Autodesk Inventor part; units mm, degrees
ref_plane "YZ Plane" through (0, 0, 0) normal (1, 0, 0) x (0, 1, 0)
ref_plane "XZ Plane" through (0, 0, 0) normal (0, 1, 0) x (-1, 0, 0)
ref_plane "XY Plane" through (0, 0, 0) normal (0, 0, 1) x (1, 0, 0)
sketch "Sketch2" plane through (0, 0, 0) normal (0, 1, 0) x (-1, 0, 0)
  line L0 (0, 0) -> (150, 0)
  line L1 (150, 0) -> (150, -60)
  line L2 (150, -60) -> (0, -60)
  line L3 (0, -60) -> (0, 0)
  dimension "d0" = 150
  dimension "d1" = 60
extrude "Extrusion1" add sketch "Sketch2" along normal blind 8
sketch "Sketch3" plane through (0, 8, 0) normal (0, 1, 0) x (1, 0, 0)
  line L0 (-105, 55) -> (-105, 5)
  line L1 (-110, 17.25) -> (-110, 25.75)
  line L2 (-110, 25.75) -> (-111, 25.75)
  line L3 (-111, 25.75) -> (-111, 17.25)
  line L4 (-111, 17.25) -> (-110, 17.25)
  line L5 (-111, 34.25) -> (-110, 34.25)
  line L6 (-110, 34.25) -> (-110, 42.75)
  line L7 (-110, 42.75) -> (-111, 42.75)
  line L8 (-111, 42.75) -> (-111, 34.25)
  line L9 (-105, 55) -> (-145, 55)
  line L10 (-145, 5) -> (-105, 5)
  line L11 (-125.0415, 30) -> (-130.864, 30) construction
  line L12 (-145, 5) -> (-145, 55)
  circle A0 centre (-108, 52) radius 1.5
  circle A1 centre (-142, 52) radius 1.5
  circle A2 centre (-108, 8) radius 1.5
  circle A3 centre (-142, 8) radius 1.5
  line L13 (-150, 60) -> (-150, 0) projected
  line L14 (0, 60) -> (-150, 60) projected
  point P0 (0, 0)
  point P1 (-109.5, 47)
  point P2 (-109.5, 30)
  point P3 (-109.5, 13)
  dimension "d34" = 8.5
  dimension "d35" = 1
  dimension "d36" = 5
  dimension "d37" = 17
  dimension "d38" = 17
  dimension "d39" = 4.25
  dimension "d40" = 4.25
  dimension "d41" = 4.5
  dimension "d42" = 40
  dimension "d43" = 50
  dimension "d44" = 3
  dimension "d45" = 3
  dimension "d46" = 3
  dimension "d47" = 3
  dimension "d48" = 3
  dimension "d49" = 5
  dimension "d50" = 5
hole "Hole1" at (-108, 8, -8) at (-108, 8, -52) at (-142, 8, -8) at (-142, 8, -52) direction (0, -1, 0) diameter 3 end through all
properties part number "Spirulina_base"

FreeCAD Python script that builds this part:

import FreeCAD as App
import Part
import Sketcher
Q = App.Units.Quantity

doc = App.newDocument("Part")
body = doc.addObject("PartDesign::Body", "Body")

# Sketch on XZ plane
sketch1 = doc.addObject("Sketcher::SketchObject", "Sketch")
body.addObject(sketch1)
sketch1.AttachmentSupport = (doc.XZ_Plane, [""])
sketch1.MapMode = "FlatFace"
sketch1.addGeometry(Part.LineSegment(App.Vector(-150, 0, 0), App.Vector(0, 0, 0)), False)
sketch1.addGeometry(Part.LineSegment(App.Vector(0, 0, 0), App.Vector(0, -60, 0)), False)
sketch1.addGeometry(Part.LineSegment(App.Vector(0, -60, 0), App.Vector(-150, -60, 0)), False)
sketch1.addGeometry(Part.LineSegment(App.Vector(-150, -60, 0), App.Vector(-150, 0, 0)), False)
sketch1.addConstraint(Sketcher.Constraint("Coincident", 0, 2, 1, 1))
sketch1.addConstraint(Sketcher.Constraint("Coincident", 1, 2, 2, 1))
sketch1.addConstraint(Sketcher.Constraint("Coincident", 2, 2, 3, 1))
sketch1.addConstraint(Sketcher.Constraint("Coincident", 3, 2, 0, 1))
sketch1.addConstraint(Sketcher.Constraint("Horizontal", 0))
sketch1.addConstraint(Sketcher.Constraint("Vertical", 1))
sketch1.addConstraint(Sketcher.Constraint("Horizontal", 2))
sketch1.addConstraint(Sketcher.Constraint("Vertical", 3))
sketch1.addConstraint(Sketcher.Constraint("Coincident", 0, 2, -1, 1))
sketch1.addConstraint(Sketcher.Constraint("DistanceX", 0, 1, 0, 2, Q("150 mm")))
sketch1.addConstraint(Sketcher.Constraint("DistanceY", 1, 2, 1, 1, Q("60 mm")))
pad1 = doc.addObject("PartDesign::Pad", "Pad")
body.addObject(pad1)
pad1.Profile = sketch1
pad1.Length = 8
pad1.Reversed = True

# Sketch on XZ plane
sketch2 = doc.addObject("Sketcher::SketchObject", "Sketch001")
body.addObject(sketch2)
sketch2.AttachmentSupport = (doc.XZ_Plane, [""])
sketch2.MapMode = "FlatFace"
sketch2.AttachmentOffset = App.Placement(App.Vector(0, 0, -8), App.Rotation())
sketch2.addGeometry(Part.Circle(App.Vector(-108, -8, 0), App.Vector(0, 0, 1), 1.5), False)
sketch2.addGeometry(Part.Circle(App.Vector(-108, -52, 0), App.Vector(0, 0, 1), 1.5), False)
sketch2.addGeometry(Part.Circle(App.Vector(-142, -8, 0), App.Vector(0, 0, 1), 1.5), False)
sketch2.addGeometry(Part.Circle(App.Vector(-142, -52, 0), App.Vector(0, 0, 1), 1.5), False)
sketch2.addConstraint(Sketcher.Constraint("Equal", 0, 1))
sketch2.addConstraint(Sketcher.Constraint("Equal", 1, 2))
sketch2.addConstraint(Sketcher.Constraint("Equal", 2, 3))
sketch2.addConstraint(Sketcher.Constraint("Horizontal", 0, 3, 2, 3))
sketch2.addConstraint(Sketcher.Constraint("Horizontal", 1, 3, 3, 3))
sketch2.addConstraint(Sketcher.Constraint("Vertical", 0, 3, 1, 3))
sketch2.addConstraint(Sketcher.Constraint("Vertical", 2, 3, 3, 3))
sketch2.addConstraint(Sketcher.Constraint("Diameter", 0, Q("3 mm")))
sketch2.addConstraint(Sketcher.Constraint("DistanceX", 0, 3, -1, 1, Q("108 mm")))
sketch2.addConstraint(Sketcher.Constraint("DistanceY", 0, 3, -1, 1, Q("8 mm")))
sketch2.addConstraint(Sketcher.Constraint("DistanceY", 1, 3, -1, 1, Q("52 mm")))
sketch2.addConstraint(Sketcher.Constraint("DistanceX", 2, 3, -1, 1, Q("142 mm")))
doc.recompute()
hole = doc.addObject("PartDesign::Hole", "Hole")
body.addObject(hole)
hole.Profile = sketch2
hole.ThreadType = "None"
hole.Diameter = 3
hole.DepthType = "ThroughAll"
hole.Reversed = True

doc.recompute()
